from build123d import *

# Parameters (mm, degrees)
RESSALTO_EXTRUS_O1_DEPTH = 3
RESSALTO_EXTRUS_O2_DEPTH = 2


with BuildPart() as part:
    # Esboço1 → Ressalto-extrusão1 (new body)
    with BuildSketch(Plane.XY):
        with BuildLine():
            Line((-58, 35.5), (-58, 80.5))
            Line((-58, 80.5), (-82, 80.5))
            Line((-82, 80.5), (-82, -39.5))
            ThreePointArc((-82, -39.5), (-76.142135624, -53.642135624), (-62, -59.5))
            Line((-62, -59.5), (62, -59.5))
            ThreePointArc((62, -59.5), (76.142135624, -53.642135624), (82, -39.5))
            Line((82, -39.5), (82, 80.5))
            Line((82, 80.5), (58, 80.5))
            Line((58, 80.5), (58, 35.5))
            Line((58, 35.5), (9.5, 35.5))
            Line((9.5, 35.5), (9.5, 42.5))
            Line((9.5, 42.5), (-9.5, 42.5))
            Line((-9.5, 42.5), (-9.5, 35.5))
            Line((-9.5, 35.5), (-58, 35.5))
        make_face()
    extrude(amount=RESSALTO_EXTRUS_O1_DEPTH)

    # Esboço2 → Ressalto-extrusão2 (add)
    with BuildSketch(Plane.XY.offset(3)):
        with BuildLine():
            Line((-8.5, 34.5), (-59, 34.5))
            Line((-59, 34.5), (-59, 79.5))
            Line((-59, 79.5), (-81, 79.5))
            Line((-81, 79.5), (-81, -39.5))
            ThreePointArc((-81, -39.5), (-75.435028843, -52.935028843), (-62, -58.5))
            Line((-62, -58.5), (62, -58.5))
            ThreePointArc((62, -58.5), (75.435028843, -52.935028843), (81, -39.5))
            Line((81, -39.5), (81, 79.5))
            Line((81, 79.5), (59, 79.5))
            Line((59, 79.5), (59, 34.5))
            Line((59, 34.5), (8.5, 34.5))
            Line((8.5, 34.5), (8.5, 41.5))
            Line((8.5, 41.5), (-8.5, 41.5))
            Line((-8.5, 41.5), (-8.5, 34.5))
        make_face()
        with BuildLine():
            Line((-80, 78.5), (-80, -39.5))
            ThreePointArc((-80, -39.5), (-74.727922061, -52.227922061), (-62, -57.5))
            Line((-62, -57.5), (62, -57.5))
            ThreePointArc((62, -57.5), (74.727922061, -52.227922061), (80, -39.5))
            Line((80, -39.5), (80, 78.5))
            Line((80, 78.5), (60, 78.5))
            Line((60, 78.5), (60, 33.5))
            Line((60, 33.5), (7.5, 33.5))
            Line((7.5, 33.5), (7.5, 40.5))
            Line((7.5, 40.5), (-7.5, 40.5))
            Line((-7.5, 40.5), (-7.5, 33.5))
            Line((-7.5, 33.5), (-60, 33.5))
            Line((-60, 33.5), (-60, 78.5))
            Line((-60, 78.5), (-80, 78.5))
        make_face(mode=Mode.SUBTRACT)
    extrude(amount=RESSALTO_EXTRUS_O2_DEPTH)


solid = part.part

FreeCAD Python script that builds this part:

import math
import FreeCAD as App
import Part
import Sketcher

V = App.Vector

doc = App.newDocument("Part")
params = doc.addObject("Spreadsheet::Sheet", "Params")
for row, (alias, value) in enumerate([
    ("sketch1_radius", "20 mm"),
    ("sketch1_width", "24 mm"),
    ("sketch1_width2", "124 mm"),
    ("sketch1_width3", "19 mm"),
    ("sketch1_height", "45 mm"),
    ("pad1_length", "3 mm"),
    ("sketch2_radius", "19 mm"),
    ("sketch2_radius2", "18 mm"),
    ("sketch2_width", "22 mm"),
    ("sketch2_width2", "124 mm"),
    ("sketch2_width3", "17 mm"),
    ("pad2_length", "2 mm"),
], start=1):
    params.set(f"A{row}", alias)
    params.set(f"B{row}", "=" + value)
    params.setAlias(f"B{row}", alias)

body = doc.addObject("PartDesign::Body", "Body")

sketch1 = body.newObject("Sketcher::SketchObject", "Sketch")
sketch1.AttachmentSupport = (doc.getObject("XY_Plane"), [""])
sketch1.MapMode = "FlatFace"
sketch1.addGeometry([
    Part.LineSegment(V(-58, 36, 0), V(-58, 80, 0)),
    Part.LineSegment(V(-58, 80, 0), V(-82, 80, 0)),
    Part.LineSegment(V(-82, 80, 0), V(-82, -40, 0)),
    Part.ArcOfCircle(Part.Circle(V(-62, -40, 0), V(0, 0, 1), 20), math.radians(180), math.radians(270)),
    Part.LineSegment(V(-62, -60, 0), V(62, -60, 0)),
    Part.ArcOfCircle(Part.Circle(V(62, -40, 0), V(0, 0, 1), 20), math.radians(-90), math.radians(0)),
    Part.LineSegment(V(82, -40, 0), V(82, 80, 0)),
    Part.LineSegment(V(82, 80, 0), V(58, 80, 0)),
    Part.LineSegment(V(58, 80, 0), V(58, 36, 0)),
    Part.LineSegment(V(58, 36, 0), V(10, 36, 0)),
    Part.LineSegment(V(10, 36, 0), V(10, 42, 0)),
    Part.LineSegment(V(10, 42, 0), V(-10, 42, 0)),
    Part.LineSegment(V(-10, 42, 0), V(-10, 36, 0)),
    Part.LineSegment(V(-10, 36, 0), V(-58, 36, 0)),
], False)
sketch1.addConstraint([
    Sketcher.Constraint("Coincident", 0, 2, 1, 1),
    Sketcher.Constraint("Coincident", 1, 2, 2, 1),
    Sketcher.Constraint("Tangent", 2, 2, 3, 1),
    Sketcher.Constraint("Tangent", 3, 2, 4, 1),
    Sketcher.Constraint("Tangent", 4, 2, 5, 1),
    Sketcher.Constraint("Tangent", 5, 2, 6, 1),
    Sketcher.Constraint("Coincident", 6, 2, 7, 1),
    Sketcher.Constraint("Coincident", 7, 2, 8, 1),
    Sketcher.Constraint("Coincident", 8, 2, 9, 1),
    Sketcher.Constraint("Coincident", 9, 2, 10, 1),
    Sketcher.Constraint("Coincident", 10, 2, 11, 1),
    Sketcher.Constraint("Coincident", 11, 2, 12, 1),
    Sketcher.Constraint("Coincident", 12, 2, 13, 1),
    Sketcher.Constraint("Coincident", 13, 2, 0, 1),
    Sketcher.Constraint("Vertical", 0),
    Sketcher.Constraint("Horizontal", 1),
    Sketcher.Constraint("Vertical", 2),
    Sketcher.Constraint("Horizontal", 4),
    Sketcher.Constraint("Vertical", 6),
    Sketcher.Constraint("Horizontal", 7),
    Sketcher.Constraint("Vertical", 8),
    Sketcher.Constraint("Horizontal", 9),
    Sketcher.Constraint("Vertical", 10),
    Sketcher.Constraint("Horizontal", 11),
    Sketcher.Constraint("Vertical", 12),
    Sketcher.Constraint("Horizontal", 13),
    Sketcher.Constraint("Equal", 3, 5),
    Sketcher.Constraint("Symmetric", 1, 2, 6, 2, -2),
    Sketcher.Constraint("Symmetric", 9, 2, 12, 2, -2),
    Sketcher.Constraint("Equal", 1, 7),
    Sketcher.Constraint("Radius", 3, 20.0),
    Sketcher.Constraint("DistanceX", 1, 2, 1, 1, 24.0),
    Sketcher.Constraint("DistanceX", 4, 1, 4, 2, 124.0),
    Sketcher.Constraint("DistanceX", 11, 2, 11, 1, 19.0),
    Sketcher.Constraint("DistanceY", 0, 1, 0, 2, 45.0),
    Sketcher.Constraint("DistanceY", 2, 2, 2, 1, 120.0),
    Sketcher.Constraint("DistanceY", 10, 1, 10, 2, 7.0),
    Sketcher.Constraint("DistanceY", 3, 3, -1, 1, 39.5),
])
sketch1.setExpression("Constraints[30]", "Params.sketch1_radius")
sketch1.setExpression("Constraints[31]", "Params.sketch1_width")
sketch1.setExpression("Constraints[32]", "Params.sketch1_width2")
sketch1.setExpression("Constraints[33]", "Params.sketch1_width3")
sketch1.setExpression("Constraints[34]", "Params.sketch1_height")
pad1 = body.newObject("PartDesign::Pad", "Pad")
pad1.Profile = sketch1
pad1.setExpression("Length", "Params.pad1_length")

sketch2 = body.newObject("Sketcher::SketchObject", "Sketch001")
sketch2.AttachmentSupport = (doc.getObject("XY_Plane"), [""])
sketch2.MapMode = "FlatFace"
sketch2.AttachmentOffset = App.Placement(V(0, 0, 3), App.Rotation())
sketch2.addGeometry([
    Part.LineSegment(V(-8, 34, 0), V(-59, 34, 0)),
    Part.LineSegment(V(-59, 34, 0), V(-59, 80, 0)),
    Part.LineSegment(V(-59, 80, 0), V(-81, 80, 0)),
    Part.LineSegment(V(-81, 80, 0), V(-81, -40, 0)),
    Part.ArcOfCircle(Part.Circle(V(-62, -40, 0), V(0, 0, 1), 19), math.radians(180), math.radians(270)),
    Part.LineSegment(V(-62, -58, 0), V(62, -58, 0)),
    Part.ArcOfCircle(Part.Circle(V(62, -40, 0), V(0, 0, 1), 19), math.radians(-90), math.radians(0)),
    Part.LineSegment(V(81, -40, 0), V(81, 80, 0)),
    Part.LineSegment(V(81, 80, 0), V(59, 80, 0)),
    Part.LineSegment(V(59, 80, 0), V(59, 34, 0)),
    Part.LineSegment(V(59, 34, 0), V(8, 34, 0)),
    Part.LineSegment(V(8, 34, 0), V(8, 42, 0)),
    Part.LineSegment(V(8, 42, 0), V(-8, 42, 0)),
    Part.LineSegment(V(-8, 42, 0), V(-8, 34, 0)),
    Part.LineSegment(V(-80, -40, 0), V(-80, 78, 0)),
    Part.LineSegment(V(-80, 78, 0), V(-60, 78, 0)),
    Part.LineSegment(V(-60, 78, 0), V(-60, 34, 0)),
    Part.LineSegment(V(-60, 34, 0), V(-8, 34, 0)),
    Part.LineSegment(V(-8, 34, 0), V(-8, 40, 0)),
    Part.LineSegment(V(-8, 40, 0), V(8, 40, 0)),
    Part.LineSegment(V(8, 40, 0), V(8, 34, 0)),
    Part.LineSegment(V(8, 34, 0), V(60, 34, 0)),
    Part.LineSegment(V(60, 34, 0), V(60, 78, 0)),
    Part.LineSegment(V(60, 78, 0), V(80, 78, 0)),
    Part.LineSegment(V(80, 78, 0), V(80, -40, 0)),
    Part.ArcOfCircle(Part.Circle(V(62, -39, 0), V(0, 0, 1), 18), math.radians(-90), math.radians(0)),
    Part.LineSegment(V(62, -58, 0), V(-62, -58, 0)),
    Part.ArcOfCircle(Part.Circle(V(-62, -39, 0), V(0, 0, 1), 18), math.radians(-180), math.radians(-90)),
], False)
sketch2.addConstraint([
    Sketcher.Constraint("Coincident", 0, 2, 1, 1),
    Sketcher.Constraint("Coincident", 1, 2, 2, 1),
    Sketcher.Constraint("Coincident", 2, 2, 3, 1),
    Sketcher.Constraint("Tangent", 3, 2, 4, 1),
    Sketcher.Constraint("Tangent", 4, 2, 5, 1),
    Sketcher.Constraint("Tangent", 5, 2, 6, 1),
    Sketcher.Constraint("Tangent", 6, 2, 7, 1),
    Sketcher.Constraint("Coincident", 7, 2, 8, 1),
    Sketcher.Constraint("Coincident", 8, 2, 9, 1),
    Sketcher.Constraint("Coincident", 9, 2, 10, 1),
    Sketcher.Constraint("Coincident", 10, 2, 11, 1),
    Sketcher.Constraint("Coincident", 11, 2, 12, 1),
    Sketcher.Constraint("Coincident", 12, 2, 13, 1),
    Sketcher.Constraint("Coincident", 13, 2, 0, 1),
    Sketcher.Constraint("Coincident", 14, 2, 15, 1),
    Sketcher.Constraint("Coincident", 15, 2, 16, 1),
    Sketcher.Constraint("Coincident", 16, 2, 17, 1),
    Sketcher.Constraint("Coincident", 17, 2, 18, 1),
    Sketcher.Constraint("Coincident", 18, 2, 19, 1),
    Sketcher.Constraint("Coincident", 19, 2, 20, 1),
    Sketcher.Constraint("Coincident", 20, 2, 21, 1),
    Sketcher.Constraint("Coincident", 21, 2, 22, 1),
    Sketcher.Constraint("Coincident", 22, 2, 23, 1),
    Sketcher.Constraint("Coincident", 23, 2, 24, 1),
    Sketcher.Constraint("Tangent", 24, 2, 25, 2),
    Sketcher.Constraint("Tangent", 25, 1, 26, 1),
    Sketcher.Constraint("Tangent", 26, 2, 27, 2),
    Sketcher.Constraint("Tangent", 27, 1, 14, 1),
    Sketcher.Constraint("Horizontal", 0),
    Sketcher.Constraint("Vertical", 1),
    Sketcher.Constraint("Horizontal", 2),
    Sketcher.Constraint("Vertical", 3),
    Sketcher.Constraint("Horizontal", 5),
    Sketcher.Constraint("Vertical", 7),
    Sketcher.Constraint("Horizontal", 8),
    Sketcher.Constraint("Vertical", 9),
    Sketcher.Constraint("Horizontal", 10),
    Sketcher.Constraint("Vertical", 11),
    Sketcher.Constraint("Horizontal", 12),
    Sketcher.Constraint("Vertical", 13),
    Sketcher.Constraint("Vertical", 14),
    Sketcher.Constraint("Horizontal", 15),
    Sketcher.Constraint("Vertical", 16),
    Sketcher.Constraint("Horizontal", 17),
    Sketcher.Constraint("Vertical", 18),
    Sketcher.Constraint("Horizontal", 19),
    Sketcher.Constraint("Vertical", 20),
    Sketcher.Constraint("Horizontal", 21),
    Sketcher.Constraint("Vertical", 22),
    Sketcher.Constraint("Horizontal", 23),
    Sketcher.Constraint("Vertical", 24),
    Sketcher.Constraint("Horizontal", 26),
    Sketcher.Constraint("Coincident", 25, 3, 6, 3),
    Sketcher.Constraint("Coincident", 27, 3, 4, 3),
    Sketcher.Constraint("Equal", 4, 6),
    Sketcher.Constraint("Symmetric", 2, 2, 7, 2, -2),
    Sketcher.Constraint("Symmetric", 0, 2, 9, 2, -2),
    Sketcher.Constraint("Symmetric", 17, 2, 20, 2, -2),
    Sketcher.Constraint("Symmetric", 15, 2, 22, 2, -2),
    Sketcher.Constraint("Equal", 0, 10),
    Sketcher.Constraint("Equal", 9, 16),
    Sketcher.Constraint("Equal", 13, 18),
    Sketcher.Constraint("Radius", 4, 19.0),
    Sketcher.Constraint("Radius", 25, 18.0),
    Sketcher.Constraint("DistanceX", 2, 2, 2, 1, 22.0),
    Sketcher.Constraint("DistanceX", 5, 1, 5, 2, 124.0),
    Sketcher.Constraint("DistanceX", 12, 2, 12, 1, 17.0),
    Sketcher.Constraint("DistanceX", 15, 1, 15, 2, 20.0),
    Sketcher.Constraint("DistanceX", 19, 1, 19, 2, 15.0),
    Sketcher.Constraint("DistanceY", 1, 1, 1, 2, 45.0),
    Sketcher.Constraint("DistanceY", 3, 2, 3, 1, 119.0),
    Sketcher.Constraint("DistanceY", 11, 1, 11, 2, 7.0),
    Sketcher.Constraint("DistanceY", 14, 1, 14, 2, 118.0),
    Sketcher.Constraint("DistanceY", 4, 3, -1, 1, 39.5),
])
sketch2.setExpression("Constraints[62]", "Params.sketch2_radius")
sketch2.setExpression("Constraints[63]", "Params.sketch2_radius2")
sketch2.setExpression("Constraints[64]", "Params.sketch2_width")
sketch2.setExpression("Constraints[65]", "Params.sketch2_width2")
sketch2.setExpression("Constraints[66]", "Params.sketch2_width3")
pad2 = body.newObject("PartDesign::Pad", "Pad001")
pad2.Profile = sketch2
pad2.setExpression("Length", "Params.pad2_length")

doc.recompute()
